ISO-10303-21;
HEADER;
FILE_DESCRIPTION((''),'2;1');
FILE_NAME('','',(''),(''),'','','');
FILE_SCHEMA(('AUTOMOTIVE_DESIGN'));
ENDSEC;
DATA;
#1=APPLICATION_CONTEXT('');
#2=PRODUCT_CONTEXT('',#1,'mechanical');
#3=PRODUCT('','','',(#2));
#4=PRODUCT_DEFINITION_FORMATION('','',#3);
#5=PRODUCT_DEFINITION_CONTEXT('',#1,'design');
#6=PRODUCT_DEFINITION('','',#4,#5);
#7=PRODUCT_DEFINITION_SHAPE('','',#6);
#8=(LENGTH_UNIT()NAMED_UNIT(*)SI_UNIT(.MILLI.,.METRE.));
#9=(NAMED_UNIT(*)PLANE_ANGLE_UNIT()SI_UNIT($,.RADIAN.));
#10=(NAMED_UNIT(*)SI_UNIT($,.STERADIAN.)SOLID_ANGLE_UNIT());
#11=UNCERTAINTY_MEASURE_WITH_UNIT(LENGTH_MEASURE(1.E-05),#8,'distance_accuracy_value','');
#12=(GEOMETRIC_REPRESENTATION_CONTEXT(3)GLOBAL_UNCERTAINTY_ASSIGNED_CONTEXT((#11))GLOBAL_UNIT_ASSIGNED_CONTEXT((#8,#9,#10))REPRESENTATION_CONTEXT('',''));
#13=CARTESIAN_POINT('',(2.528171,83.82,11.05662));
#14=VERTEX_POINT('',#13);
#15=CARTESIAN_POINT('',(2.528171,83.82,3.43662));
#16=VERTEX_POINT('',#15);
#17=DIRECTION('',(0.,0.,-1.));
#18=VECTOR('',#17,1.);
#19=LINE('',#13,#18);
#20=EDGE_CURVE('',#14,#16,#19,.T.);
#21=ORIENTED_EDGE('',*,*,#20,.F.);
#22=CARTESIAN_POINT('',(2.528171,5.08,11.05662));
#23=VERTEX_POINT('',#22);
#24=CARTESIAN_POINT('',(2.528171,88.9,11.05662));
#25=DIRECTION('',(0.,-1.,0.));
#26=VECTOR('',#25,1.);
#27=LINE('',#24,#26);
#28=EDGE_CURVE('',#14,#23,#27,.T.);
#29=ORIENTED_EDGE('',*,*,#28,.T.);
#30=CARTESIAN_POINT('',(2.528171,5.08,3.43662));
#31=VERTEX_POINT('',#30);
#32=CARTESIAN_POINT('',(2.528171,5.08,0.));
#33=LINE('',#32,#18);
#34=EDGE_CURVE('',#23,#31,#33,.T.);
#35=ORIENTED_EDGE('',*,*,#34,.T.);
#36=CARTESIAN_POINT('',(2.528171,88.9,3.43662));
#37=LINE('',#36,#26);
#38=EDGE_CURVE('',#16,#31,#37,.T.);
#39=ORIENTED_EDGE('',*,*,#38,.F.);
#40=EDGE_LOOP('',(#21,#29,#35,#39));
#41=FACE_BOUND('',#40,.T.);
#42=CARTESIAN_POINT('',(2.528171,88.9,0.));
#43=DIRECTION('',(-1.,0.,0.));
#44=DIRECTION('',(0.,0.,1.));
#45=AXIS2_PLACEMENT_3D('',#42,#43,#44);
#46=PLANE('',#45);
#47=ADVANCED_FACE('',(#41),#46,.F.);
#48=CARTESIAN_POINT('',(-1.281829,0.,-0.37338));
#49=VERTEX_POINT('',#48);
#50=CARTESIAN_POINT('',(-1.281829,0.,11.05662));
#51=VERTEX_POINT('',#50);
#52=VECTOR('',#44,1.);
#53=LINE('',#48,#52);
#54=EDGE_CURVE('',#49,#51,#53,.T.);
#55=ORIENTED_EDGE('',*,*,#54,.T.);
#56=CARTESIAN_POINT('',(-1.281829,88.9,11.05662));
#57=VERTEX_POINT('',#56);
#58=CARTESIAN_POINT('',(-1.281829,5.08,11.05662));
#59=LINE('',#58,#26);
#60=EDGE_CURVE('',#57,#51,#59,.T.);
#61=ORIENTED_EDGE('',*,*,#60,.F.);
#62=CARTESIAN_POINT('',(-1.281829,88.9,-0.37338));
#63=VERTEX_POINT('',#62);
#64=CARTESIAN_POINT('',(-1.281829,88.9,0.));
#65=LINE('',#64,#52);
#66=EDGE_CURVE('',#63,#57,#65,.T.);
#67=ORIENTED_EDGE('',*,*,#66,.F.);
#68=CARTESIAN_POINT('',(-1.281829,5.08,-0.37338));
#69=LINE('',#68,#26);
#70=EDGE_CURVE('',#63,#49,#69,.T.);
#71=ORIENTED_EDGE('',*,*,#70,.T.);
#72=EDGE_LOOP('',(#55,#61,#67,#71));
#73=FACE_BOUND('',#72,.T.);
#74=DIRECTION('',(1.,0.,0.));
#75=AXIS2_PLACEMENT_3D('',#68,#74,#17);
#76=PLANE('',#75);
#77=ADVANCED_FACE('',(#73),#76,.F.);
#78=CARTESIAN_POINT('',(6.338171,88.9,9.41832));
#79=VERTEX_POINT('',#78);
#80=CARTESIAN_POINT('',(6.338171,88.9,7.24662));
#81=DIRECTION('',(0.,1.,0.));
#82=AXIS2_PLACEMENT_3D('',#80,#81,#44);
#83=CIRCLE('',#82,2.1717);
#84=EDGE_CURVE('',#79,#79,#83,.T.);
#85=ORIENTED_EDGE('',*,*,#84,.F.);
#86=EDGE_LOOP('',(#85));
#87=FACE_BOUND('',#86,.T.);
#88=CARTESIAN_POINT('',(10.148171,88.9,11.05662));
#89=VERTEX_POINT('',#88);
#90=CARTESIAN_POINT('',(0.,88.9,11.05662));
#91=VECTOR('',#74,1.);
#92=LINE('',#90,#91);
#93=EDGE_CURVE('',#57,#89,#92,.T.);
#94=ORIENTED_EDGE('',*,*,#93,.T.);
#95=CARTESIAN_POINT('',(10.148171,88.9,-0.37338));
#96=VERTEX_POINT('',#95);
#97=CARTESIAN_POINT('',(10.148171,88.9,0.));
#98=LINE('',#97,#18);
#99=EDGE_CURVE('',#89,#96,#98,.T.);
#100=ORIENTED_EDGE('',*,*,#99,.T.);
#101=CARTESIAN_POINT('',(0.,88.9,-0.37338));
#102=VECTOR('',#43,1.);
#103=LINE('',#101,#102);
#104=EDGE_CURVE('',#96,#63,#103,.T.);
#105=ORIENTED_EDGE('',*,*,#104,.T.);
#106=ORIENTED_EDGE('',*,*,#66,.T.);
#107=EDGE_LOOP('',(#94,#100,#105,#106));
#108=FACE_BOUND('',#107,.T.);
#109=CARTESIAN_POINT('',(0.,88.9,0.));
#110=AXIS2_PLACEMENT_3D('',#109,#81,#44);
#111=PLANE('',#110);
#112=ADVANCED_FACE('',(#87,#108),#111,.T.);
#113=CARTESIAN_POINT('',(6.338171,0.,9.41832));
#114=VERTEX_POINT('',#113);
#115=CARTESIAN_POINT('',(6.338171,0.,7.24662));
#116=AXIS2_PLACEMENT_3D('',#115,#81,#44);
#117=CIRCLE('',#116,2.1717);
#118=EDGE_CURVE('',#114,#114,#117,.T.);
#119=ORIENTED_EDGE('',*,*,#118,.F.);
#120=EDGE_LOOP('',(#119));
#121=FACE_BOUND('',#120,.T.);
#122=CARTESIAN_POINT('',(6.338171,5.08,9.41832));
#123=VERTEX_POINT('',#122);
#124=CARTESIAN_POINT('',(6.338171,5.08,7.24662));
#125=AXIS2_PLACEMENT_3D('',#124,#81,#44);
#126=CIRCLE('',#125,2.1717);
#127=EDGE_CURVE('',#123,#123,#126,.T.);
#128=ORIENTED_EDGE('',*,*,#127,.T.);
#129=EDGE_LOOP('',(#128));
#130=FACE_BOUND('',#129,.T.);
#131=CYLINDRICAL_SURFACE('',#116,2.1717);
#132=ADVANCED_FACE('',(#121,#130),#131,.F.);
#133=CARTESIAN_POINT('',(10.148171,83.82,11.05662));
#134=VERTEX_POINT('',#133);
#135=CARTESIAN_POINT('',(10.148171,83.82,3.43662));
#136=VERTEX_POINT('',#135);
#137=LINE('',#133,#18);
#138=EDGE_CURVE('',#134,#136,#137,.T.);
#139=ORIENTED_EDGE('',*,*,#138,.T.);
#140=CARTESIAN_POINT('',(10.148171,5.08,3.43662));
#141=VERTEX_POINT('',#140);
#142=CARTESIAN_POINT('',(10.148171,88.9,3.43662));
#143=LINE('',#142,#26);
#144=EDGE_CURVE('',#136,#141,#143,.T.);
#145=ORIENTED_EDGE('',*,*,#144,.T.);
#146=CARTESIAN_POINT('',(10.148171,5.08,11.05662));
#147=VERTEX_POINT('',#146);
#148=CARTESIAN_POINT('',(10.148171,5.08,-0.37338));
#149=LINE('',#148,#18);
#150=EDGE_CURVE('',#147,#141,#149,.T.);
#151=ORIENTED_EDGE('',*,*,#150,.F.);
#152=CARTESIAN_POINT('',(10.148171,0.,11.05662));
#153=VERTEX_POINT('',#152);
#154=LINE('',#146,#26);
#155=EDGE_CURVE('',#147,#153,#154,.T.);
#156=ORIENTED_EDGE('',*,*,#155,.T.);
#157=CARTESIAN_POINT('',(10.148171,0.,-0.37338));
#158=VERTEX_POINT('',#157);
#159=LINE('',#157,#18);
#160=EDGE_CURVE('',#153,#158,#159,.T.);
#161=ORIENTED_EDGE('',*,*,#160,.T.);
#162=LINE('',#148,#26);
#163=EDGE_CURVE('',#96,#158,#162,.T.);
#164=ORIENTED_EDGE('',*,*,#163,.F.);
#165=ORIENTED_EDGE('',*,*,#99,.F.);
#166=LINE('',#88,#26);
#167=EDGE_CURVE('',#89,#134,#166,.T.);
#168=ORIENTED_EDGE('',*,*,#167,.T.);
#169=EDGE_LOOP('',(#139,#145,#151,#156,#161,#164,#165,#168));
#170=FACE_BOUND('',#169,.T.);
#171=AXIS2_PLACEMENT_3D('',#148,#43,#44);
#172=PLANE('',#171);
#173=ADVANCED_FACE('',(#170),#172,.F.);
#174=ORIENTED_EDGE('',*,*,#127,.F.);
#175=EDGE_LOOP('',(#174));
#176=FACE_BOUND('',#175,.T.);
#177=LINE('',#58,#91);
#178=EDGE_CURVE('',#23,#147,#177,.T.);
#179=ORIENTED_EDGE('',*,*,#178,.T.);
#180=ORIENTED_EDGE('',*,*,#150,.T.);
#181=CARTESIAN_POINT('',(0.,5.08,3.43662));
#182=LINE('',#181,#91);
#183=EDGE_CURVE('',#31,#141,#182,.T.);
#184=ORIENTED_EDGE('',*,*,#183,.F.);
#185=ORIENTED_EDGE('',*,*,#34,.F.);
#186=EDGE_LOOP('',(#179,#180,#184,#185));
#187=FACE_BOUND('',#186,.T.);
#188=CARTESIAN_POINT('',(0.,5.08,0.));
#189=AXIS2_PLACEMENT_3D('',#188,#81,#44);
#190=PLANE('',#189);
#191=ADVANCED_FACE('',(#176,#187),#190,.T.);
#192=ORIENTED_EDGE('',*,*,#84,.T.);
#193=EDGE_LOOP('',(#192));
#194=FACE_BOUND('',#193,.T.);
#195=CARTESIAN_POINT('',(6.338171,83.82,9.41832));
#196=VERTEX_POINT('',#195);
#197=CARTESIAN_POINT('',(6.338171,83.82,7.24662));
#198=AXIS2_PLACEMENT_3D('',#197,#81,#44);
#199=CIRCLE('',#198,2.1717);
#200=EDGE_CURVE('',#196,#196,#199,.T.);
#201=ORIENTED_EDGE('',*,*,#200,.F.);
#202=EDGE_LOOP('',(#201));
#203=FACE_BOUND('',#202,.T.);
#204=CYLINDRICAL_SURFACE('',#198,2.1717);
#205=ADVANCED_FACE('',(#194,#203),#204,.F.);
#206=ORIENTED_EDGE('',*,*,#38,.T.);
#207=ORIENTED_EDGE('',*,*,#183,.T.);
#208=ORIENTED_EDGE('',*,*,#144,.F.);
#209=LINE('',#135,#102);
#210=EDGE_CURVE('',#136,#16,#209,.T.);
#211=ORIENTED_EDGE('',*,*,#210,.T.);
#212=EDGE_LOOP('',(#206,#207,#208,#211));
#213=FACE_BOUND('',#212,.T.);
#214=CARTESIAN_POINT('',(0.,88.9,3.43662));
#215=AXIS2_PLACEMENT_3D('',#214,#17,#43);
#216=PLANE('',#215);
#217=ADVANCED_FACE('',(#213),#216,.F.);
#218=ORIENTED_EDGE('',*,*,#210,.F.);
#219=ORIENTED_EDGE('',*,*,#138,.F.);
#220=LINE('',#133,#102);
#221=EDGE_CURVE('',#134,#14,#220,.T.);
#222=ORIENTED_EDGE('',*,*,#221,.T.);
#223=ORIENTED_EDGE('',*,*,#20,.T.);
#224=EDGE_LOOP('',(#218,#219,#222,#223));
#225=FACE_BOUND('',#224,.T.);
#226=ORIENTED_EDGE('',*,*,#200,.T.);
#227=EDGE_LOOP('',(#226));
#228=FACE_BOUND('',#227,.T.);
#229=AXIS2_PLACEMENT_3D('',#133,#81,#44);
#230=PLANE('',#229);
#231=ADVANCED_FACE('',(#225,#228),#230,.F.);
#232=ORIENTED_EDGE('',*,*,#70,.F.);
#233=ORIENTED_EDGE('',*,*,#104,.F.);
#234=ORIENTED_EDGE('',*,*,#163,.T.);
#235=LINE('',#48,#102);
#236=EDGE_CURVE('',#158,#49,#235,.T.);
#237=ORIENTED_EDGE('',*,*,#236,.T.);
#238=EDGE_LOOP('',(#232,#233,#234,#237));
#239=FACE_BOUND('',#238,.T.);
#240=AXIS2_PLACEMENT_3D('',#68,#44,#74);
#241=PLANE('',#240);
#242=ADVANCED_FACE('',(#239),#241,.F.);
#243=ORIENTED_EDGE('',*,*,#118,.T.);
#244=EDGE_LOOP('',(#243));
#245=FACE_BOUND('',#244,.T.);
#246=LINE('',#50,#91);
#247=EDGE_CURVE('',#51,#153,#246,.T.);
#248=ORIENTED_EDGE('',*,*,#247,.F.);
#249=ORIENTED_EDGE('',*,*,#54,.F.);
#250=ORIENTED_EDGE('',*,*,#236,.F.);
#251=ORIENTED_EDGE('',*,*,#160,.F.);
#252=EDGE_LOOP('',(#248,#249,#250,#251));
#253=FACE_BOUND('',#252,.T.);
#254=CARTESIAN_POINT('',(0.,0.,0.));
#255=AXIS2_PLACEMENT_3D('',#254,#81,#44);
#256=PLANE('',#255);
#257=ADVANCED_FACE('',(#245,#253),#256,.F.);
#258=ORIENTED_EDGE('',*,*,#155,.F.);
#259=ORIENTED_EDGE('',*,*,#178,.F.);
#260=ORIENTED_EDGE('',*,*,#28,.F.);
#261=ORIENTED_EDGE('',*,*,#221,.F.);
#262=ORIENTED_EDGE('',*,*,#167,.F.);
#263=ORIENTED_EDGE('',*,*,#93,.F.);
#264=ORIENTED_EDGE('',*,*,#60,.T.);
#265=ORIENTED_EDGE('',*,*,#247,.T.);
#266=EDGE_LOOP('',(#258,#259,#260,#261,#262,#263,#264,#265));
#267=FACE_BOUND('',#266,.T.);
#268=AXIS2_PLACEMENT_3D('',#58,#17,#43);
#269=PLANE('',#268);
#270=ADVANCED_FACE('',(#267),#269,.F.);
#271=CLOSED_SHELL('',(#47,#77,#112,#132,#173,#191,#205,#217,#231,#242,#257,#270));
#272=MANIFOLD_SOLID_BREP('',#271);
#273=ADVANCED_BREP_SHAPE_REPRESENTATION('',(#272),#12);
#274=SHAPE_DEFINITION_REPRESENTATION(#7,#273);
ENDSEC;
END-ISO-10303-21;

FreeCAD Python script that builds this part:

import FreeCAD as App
import Part
import Sketcher

V = App.Vector
Q = App.Units.Quantity

doc = App.newDocument("Part")
body = doc.addObject("PartDesign::Body", "Body")

# Sketch on XZ plane
sketch1 = body.newObject("Sketcher::SketchObject", "Sketch")
sketch1.AttachmentSupport = (doc.getObject("XZ_Plane"), [""])
sketch1.MapMode = "FlatFace"
sketch1.addGeometry([
    Part.LineSegment(V(-1, 0, 0), V(-1, 11, 0)),
    Part.LineSegment(V(-1, 11, 0), V(10, 11, 0)),
    Part.LineSegment(V(10, 11, 0), V(10, 0, 0)),
    Part.LineSegment(V(10, 0, 0), V(-1, 0, 0)),
], False)
sketch1.addConstraint([
    Sketcher.Constraint("Coincident", 0, 2, 1, 1),
    Sketcher.Constraint("Coincident", 1, 2, 2, 1),
    Sketcher.Constraint("Coincident", 2, 2, 3, 1),
    Sketcher.Constraint("Coincident", 3, 2, 0, 1),
    Sketcher.Constraint("Vertical", 0),
    Sketcher.Constraint("Horizontal", 1),
    Sketcher.Constraint("Vertical", 2),
    Sketcher.Constraint("Horizontal", 3),
    Sketcher.Constraint("Equal", 3, 0),
    Sketcher.Constraint("DistanceX", 1, 1, 1, 2, Q("0.45 in")),
    Sketcher.Constraint("DistanceY", -1, 1, 0, 2, Q("0.4353 in")),
    Sketcher.Constraint("DistanceX", 0, 2, -1, 1, Q("1.281829 mm")),
])
pad1 = body.newObject("PartDesign::Pad", "Pad")
pad1.Profile = sketch1
pad1.Length = Q("0.2 in")
pad1.Reversed = True

# Sketch on XZ plane
sketch2 = body.newObject("Sketcher::SketchObject", "Sketch001")
sketch2.AttachmentSupport = (doc.getObject("XZ_Plane"), [""])
sketch2.MapMode = "FlatFace"
sketch2.AttachmentOffset = App.Placement(V(0, 0, -0.2 * 25.4), App.Rotation())
sketch2.addGeometry([
    Part.LineSegment(V(-1.3, 11.1, 0), V(2.5, 11.1, 0)),  # 0
    Part.LineSegment(V(2.5, 11.1, 0), V(2.5, 3.4, 0)),  # 1
    Part.LineSegment(V(2.5, 3.4, 0), V(10.1, 3.4, 0)),  # 2
    Part.LineSegment(V(10.1, 3.4, 0), V(10.1, -0.4, 0)),  # 3
    Part.LineSegment(V(10.1, -0.4, 0), V(-1.3, -0.4, 0)),  # 4
    Part.LineSegment(V(-1.3, -0.4, 0), V(-1.3, 11.1, 0)),  # 5
], False)
sketch2.addConstraint([
    Sketcher.Constraint("Coincident", 0, 2, 1, 1),
    Sketcher.Constraint("Coincident", 1, 2, 2, 1),
    Sketcher.Constraint("Coincident", 2, 2, 3, 1),
    Sketcher.Constraint("Coincident", 3, 2, 4, 1),
    Sketcher.Constraint("Coincident", 4, 2, 5, 1),
    Sketcher.Constraint("Coincident", 5, 2, 0, 1),
    Sketcher.Constraint("Horizontal", 0),
    Sketcher.Constraint("Vertical", 1),
    Sketcher.Constraint("Horizontal", 2),
    Sketcher.Constraint("Vertical", 3),
    Sketcher.Constraint("Horizontal", 4),
    Sketcher.Constraint("Vertical", 5),
    Sketcher.Constraint("Equal", 2, 1),
    Sketcher.Constraint("Equal", 0, 3),
    Sketcher.Constraint("DistanceX", 2, 1, 2, 2, Q("0.3 in")),
    Sketcher.Constraint("DistanceX", 0, 1, 0, 2, Q("0.15 in")),
    Sketcher.Constraint("DistanceY", -1, 1, 0, 2, Q("0.4353 in")),
    Sketcher.Constraint("DistanceX", -1, 1, 0, 2, Q("2.528171 mm")),
])
pad2 = body.newObject("PartDesign::Pad", "Pad001")
pad2.Profile = sketch2
pad2.Length = Q("3.3 in")
pad2.Reversed = True

# Sketch on YZ plane
sketch3 = body.newObject("Sketcher::SketchObject", "Sketch002")
sketch3.AttachmentSupport = (doc.getObject("YZ_Plane"), [""])
sketch3.MapMode = "FlatFace"
sketch3.AttachmentOffset = App.Placement(V(0, 0, 2.528171), App.Rotation())
sketch3.addGeometry([
    Part.LineSegment(V(89, 11, 0), V(84, 11, 0)),
    Part.LineSegment(V(84, 11, 0), V(84, 3, 0)),
    Part.LineSegment(V(84, 3, 0), V(89, 3, 0)),
    Part.LineSegment(V(89, 3, 0), V(89, 11, 0)),
], False)
sketch3.addConstraint([
    Sketcher.Constraint("Coincident", 0, 2, 1, 1),
    Sketcher.Constraint("Coincident", 1, 2, 2, 1),
    Sketcher.Constraint("Coincident", 2, 2, 3, 1),
    Sketcher.Constraint("Coincident", 3, 2, 0, 1),
    Sketcher.Constraint("Horizontal", 0),
    Sketcher.Constraint("Vertical", 1),
    Sketcher.Constraint("Horizontal", 2),
    Sketcher.Constraint("Vertical", 3),
    Sketcher.Constraint("DistanceX", 0, 2, 0, 1, Q("0.2 in")),
    Sketcher.Constraint("DistanceY", 1, 2, 1, 1, Q("0.3 in")),
    Sketcher.Constraint("DistanceX", -1, 1, 0, 2, Q("3.3 in")),
    Sketcher.Constraint("DistanceY", -1, 1, 0, 2, Q("0.4353 in")),
])
pad3 = body.newObject("PartDesign::Pad", "Pad002")
pad3.Profile = sketch3
pad3.Length = Q("0.3 in")

# Sketch on XZ plane
sketch4 = body.newObject("Sketcher::SketchObject", "Sketch003")
sketch4.AttachmentSupport = (doc.getObject("XZ_Plane"), [""])
sketch4.MapMode = "FlatFace"
sketch4.AttachmentOffset = App.Placement(V(0, 0, -3.5 * 25.4), App.Rotation())
sketch4.addGeometry(Part.Circle(V(6.3, 7.2, 0), V(0, 0, 1), 2.2), False)
sketch4.addConstraint([
    Sketcher.Constraint("Diameter", 0, Q("0.171 in")),
    Sketcher.Constraint("DistanceY", -1, 1, 0, 3, Q("0.2853 in")),
    Sketcher.Constraint("DistanceX", -1, 1, 0, 3, Q("6.338171 mm")),
])
pocket1 = body.newObject("PartDesign::Pocket", "Pocket")
pocket1.Profile = sketch4
pocket1.Length = Q("0.2 in")
pocket1.Reversed = True

# Sketch on XZ plane
sketch5 = body.newObject("Sketcher::SketchObject", "Sketch004")
sketch5.AttachmentSupport = (doc.getObject("XZ_Plane"), [""])
sketch5.MapMode = "FlatFace"
sketch5.AttachmentOffset = App.Placement(V(0, 0, -0.2 * 25.4), App.Rotation())
sketch5.addGeometry(Part.Circle(V(6.3, 7.2, 0), V(0, 0, 1), 2.2), False)
sketch5.addConstraint([
    Sketcher.Constraint("Diameter", 0, Q("0.171 in")),
    Sketcher.Constraint("DistanceY", -1, 1, 0, 3, Q("0.2853 in")),
    Sketcher.Constraint("DistanceX", -1, 1, 0, 3, Q("6.338171 mm")),
])
pocket2 = body.newObject("PartDesign::Pocket", "Pocket001")
pocket2.Profile = sketch5
pocket2.Length = Q("0.2 in")
pocket2.Reversed = True

doc.recompute()
